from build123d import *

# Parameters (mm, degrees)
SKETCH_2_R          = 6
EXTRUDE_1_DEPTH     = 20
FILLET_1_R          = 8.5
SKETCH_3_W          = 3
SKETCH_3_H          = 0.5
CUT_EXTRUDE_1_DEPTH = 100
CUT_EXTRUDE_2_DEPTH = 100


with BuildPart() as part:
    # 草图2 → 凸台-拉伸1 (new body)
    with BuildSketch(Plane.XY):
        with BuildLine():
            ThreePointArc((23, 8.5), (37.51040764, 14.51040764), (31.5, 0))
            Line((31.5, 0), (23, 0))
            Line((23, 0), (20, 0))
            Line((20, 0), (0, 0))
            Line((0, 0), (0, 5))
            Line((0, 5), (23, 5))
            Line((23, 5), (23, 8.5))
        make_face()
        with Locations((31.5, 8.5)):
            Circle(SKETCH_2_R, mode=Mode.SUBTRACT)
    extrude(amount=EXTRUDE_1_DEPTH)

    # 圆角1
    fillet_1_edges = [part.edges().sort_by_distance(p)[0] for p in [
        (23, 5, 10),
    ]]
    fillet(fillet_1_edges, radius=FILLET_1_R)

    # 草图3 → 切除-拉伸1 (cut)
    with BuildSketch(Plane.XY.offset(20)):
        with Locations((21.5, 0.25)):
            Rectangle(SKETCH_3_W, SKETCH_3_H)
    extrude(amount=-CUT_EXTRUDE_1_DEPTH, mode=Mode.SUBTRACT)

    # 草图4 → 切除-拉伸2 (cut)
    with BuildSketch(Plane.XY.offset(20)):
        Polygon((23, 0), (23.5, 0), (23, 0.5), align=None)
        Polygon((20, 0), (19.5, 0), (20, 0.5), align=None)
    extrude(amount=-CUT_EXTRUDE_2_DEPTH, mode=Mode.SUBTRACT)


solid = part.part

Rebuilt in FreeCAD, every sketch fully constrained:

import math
import FreeCAD as App
import Part
import Sketcher
from FreeCAD import Vector
Q = App.Units.Quantity


def edges_at(feature, points):
    """Names of the edges that pass closest to the given points."""
    edges = feature.Shape.Edges
    near = lambda p: min(range(len(edges)), key=lambda i: edges[i].distToShape(Part.Vertex(*p))[0])
    return sorted({f"Edge{near(p) + 1}" for p in points})


def add_polygon(sketch, points):
    """Adds a closed chain of lines whose ends are joined by coincident constraints."""
    first, n = sketch.GeometryCount, len(points)
    for a, b in zip(points, points[1:] + points[:1]):
        sketch.addGeometry(Part.LineSegment(App.Vector(*a, 0), App.Vector(*b, 0)), False)
    for i in range(n):
        sketch.addConstraint(Sketcher.Constraint("Coincident", first + i, 2, first + (i + 1) % n, 1))

doc = App.newDocument("Part")
body = doc.addObject("PartDesign::Body", "Body")

# Sketch on XY plane
sketch1 = doc.addObject("Sketcher::SketchObject", "Sketch")
body.addObject(sketch1)
sketch1.AttachmentSupport = (doc.XY_Plane, [""])
sketch1.MapMode = "FlatFace"
sketch1.addGeometry(Part.ArcOfCircle(Part.Circle(Vector(31.5, 8.5, 0), Vector(0, 0, 1), 8.5), math.radians(-90), math.radians(180)), False)
sketch1.addGeometry(Part.LineSegment(Vector(23, 8.5, 0), Vector(23, 5, 0)), False)
sketch1.addGeometry(Part.LineSegment(Vector(23, 5, 0), Vector(0, 5, 0)), False)
sketch1.addGeometry(Part.LineSegment(Vector(0, 5, 0), Vector(0, 0, 0)), False)
sketch1.addGeometry(Part.LineSegment(Vector(0, 0, 0), Vector(31.5, 0, 0)), False)
sketch1.addGeometry(Part.Circle(Vector(31.5, 8.5, 0), Vector(0, 0, 1), 6), False)
sketch1.addConstraint(Sketcher.Constraint("Tangent", 0, 2, 1, 1))
sketch1.addConstraint(Sketcher.Constraint("Coincident", 1, 2, 2, 1))
sketch1.addConstraint(Sketcher.Constraint("Coincident", 2, 2, 3, 1))
sketch1.addConstraint(Sketcher.Constraint("Coincident", 3, 2, 4, 1))
sketch1.addConstraint(Sketcher.Constraint("Tangent", 4, 2, 0, 1))
sketch1.addConstraint(Sketcher.Constraint("Vertical", 1))
sketch1.addConstraint(Sketcher.Constraint("Horizontal", 2))
sketch1.addConstraint(Sketcher.Constraint("Vertical", 3))
sketch1.addConstraint(Sketcher.Constraint("Horizontal", 4))
sketch1.addConstraint(Sketcher.Constraint("Coincident", 3, 2, -1, 1))
sketch1.addConstraint(Sketcher.Constraint("Coincident", 5, 3, 0, 3))
sketch1.addConstraint(Sketcher.Constraint("Diameter", 5, Q("12 mm")))
sketch1.addConstraint(Sketcher.Constraint("Radius", 0, Q("8.5 mm")))
sketch1.addConstraint(Sketcher.Constraint("DistanceX", 2, 2, 2, 1, Q("23 mm")))
sketch1.addConstraint(Sketcher.Constraint("DistanceY", 3, 2, 3, 1, Q("5 mm")))
pad1 = doc.addObject("PartDesign::Pad", "Pad")
body.addObject(pad1)
pad1.Profile = sketch1
pad1.Length = 20
doc.recompute()

fillet = doc.addObject("PartDesign::Fillet", "Fillet")
body.addObject(fillet)
fillet.Base = (pad1, edges_at(pad1, [(23, 5, 10)]))
fillet.Radius = 8.5

# Sketch on XY plane
sketch2 = doc.addObject("Sketcher::SketchObject", "Sketch001")
body.addObject(sketch2)
sketch2.AttachmentSupport = (doc.XY_Plane, [""])
sketch2.MapMode = "FlatFace"
sketch2.AttachmentOffset = App.Placement(Vector(0, 0, 20), App.Rotation())
add_polygon(sketch2, [(20, 0.5), (20, 0), (23, 0), (23, 0.5)])  # lines 0-3
sketch2.addConstraint(Sketcher.Constraint("Vertical", 0))
sketch2.addConstraint(Sketcher.Constraint("Horizontal", 1))
sketch2.addConstraint(Sketcher.Constraint("Vertical", 2))
sketch2.addConstraint(Sketcher.Constraint("Horizontal", 3))
sketch2.addConstraint(Sketcher.Constraint("PointOnObject", 0, 2, -1))
sketch2.addConstraint(Sketcher.Constraint("DistanceX", 1, 1, 1, 2, Q("3 mm")))
sketch2.addConstraint(Sketcher.Constraint("DistanceY", 0, 2, 0, 1, Q("0.5 mm")))
sketch2.addConstraint(Sketcher.Constraint("DistanceX", -1, 1, 0, 2, Q("20 mm")))
pocket1 = doc.addObject("PartDesign::Pocket", "Pocket")
body.addObject(pocket1)
pocket1.Profile = sketch2
pocket1.Length = 100

# Sketch on XY plane
sketch3 = doc.addObject("Sketcher::SketchObject", "Sketch002")
body.addObject(sketch3)
sketch3.AttachmentSupport = (doc.XY_Plane, [""])
sketch3.MapMode = "FlatFace"
sketch3.AttachmentOffset = App.Placement(Vector(0, 0, 20), App.Rotation())
add_polygon(sketch3, [(23, 0), (23.5, 0), (23, 0.5)])  # lines 0-2
add_polygon(sketch3, [(19.5, 0), (20, 0), (20, 0.5)])  # lines 3-5
sketch3.addConstraint(Sketcher.Constraint("Horizontal", 0))
sketch3.addConstraint(Sketcher.Constraint("Vertical", 2))
sketch3.addConstraint(Sketcher.Constraint("Horizontal", 3))
sketch3.addConstraint(Sketcher.Constraint("Vertical", 4))
sketch3.addConstraint(Sketcher.Constraint("PointOnObject", 0, 2, -1))
sketch3.addConstraint(Sketcher.Constraint("PointOnObject", 3, 2, -1))
sketch3.addConstraint(Sketcher.Constraint("Perpendicular", 1, 5))
sketch3.addConstraint(Sketcher.Constraint("Horizontal", 1, 2, 4, 2))
sketch3.addConstraint(Sketcher.Constraint("Equal", 0, 3))
sketch3.addConstraint(Sketcher.Constraint("DistanceX", 0, 1, 0, 2, Q("0.5 mm")))
sketch3.addConstraint(Sketcher.Constraint("DistanceX", -1, 1, 1, 2, Q("23 mm")))
sketch3.addConstraint(Sketcher.Constraint("DistanceX", -1, 1, 3, 2, Q("20 mm")))
pocket2 = doc.addObject("PartDesign::Pocket", "Pocket001")
body.addObject(pocket2)
pocket2.Profile = sketch3
pocket2.Length = 100

doc.recompute()
